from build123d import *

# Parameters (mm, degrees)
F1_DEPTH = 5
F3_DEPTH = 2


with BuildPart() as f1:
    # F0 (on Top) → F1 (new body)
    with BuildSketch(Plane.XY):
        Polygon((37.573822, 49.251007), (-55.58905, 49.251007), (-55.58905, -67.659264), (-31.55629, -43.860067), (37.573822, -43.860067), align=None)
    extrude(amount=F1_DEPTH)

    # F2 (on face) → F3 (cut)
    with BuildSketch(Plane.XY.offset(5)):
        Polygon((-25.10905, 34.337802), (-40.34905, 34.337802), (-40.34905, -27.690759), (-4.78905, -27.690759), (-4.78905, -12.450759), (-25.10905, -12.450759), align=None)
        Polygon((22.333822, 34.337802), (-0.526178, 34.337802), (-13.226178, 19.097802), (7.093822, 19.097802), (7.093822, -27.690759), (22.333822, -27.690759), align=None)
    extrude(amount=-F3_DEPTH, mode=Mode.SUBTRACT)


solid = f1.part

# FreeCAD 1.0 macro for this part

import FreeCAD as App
import Part
import Sketcher
Q = App.Units.Quantity

doc = App.newDocument("Part")
body = doc.addObject("PartDesign::Body", "Body")

sketch1 = doc.addObject("Sketcher::SketchObject", "Sketch")
body.addObject(sketch1)
sketch1.AttachmentSupport = (doc.XY_Plane, [""])
sketch1.MapMode = "FlatFace"
sketch1.addGeometry(Part.LineSegment(App.Vector(38, 49, 0), App.Vector(-56, 49, 0)), False)
sketch1.addGeometry(Part.LineSegment(App.Vector(-56, 49, 0), App.Vector(-56, -68, 0)), False)
sketch1.addGeometry(Part.LineSegment(App.Vector(-56, -68, 0), App.Vector(-32, -44, 0)), False)
sketch1.addGeometry(Part.LineSegment(App.Vector(-32, -44, 0), App.Vector(38, -44, 0)), False)
sketch1.addGeometry(Part.LineSegment(App.Vector(38, -44, 0), App.Vector(38, 49, 0)), False)
sketch1.addConstraint(Sketcher.Constraint("Coincident", 0, 2, 1, 1))
sketch1.addConstraint(Sketcher.Constraint("Coincident", 1, 2, 2, 1))
sketch1.addConstraint(Sketcher.Constraint("Coincident", 2, 2, 3, 1))
sketch1.addConstraint(Sketcher.Constraint("Coincident", 3, 2, 4, 1))
sketch1.addConstraint(Sketcher.Constraint("Coincident", 4, 2, 0, 1))
sketch1.addConstraint(Sketcher.Constraint("Horizontal", 0))
sketch1.addConstraint(Sketcher.Constraint("Vertical", 1))
sketch1.addConstraint(Sketcher.Constraint("Horizontal", 3))
sketch1.addConstraint(Sketcher.Constraint("Vertical", 4))
sketch1.addConstraint(Sketcher.Constraint("DistanceX", 0, 2, 0, 1, Q("93.162872 mm")))
sketch1.addConstraint(Sketcher.Constraint("DistanceX", 3, 1, 3, 2, Q("69.130112 mm")))
sketch1.addConstraint(Sketcher.Constraint("DistanceY", 1, 2, 1, 1, Q("116.910271 mm")))
sketch1.addConstraint(Sketcher.Constraint("DistanceY", 4, 1, 4, 2, Q("93.111074 mm")))
sketch1.addConstraint(Sketcher.Constraint("DistanceX", 0, 2, -1, 1, Q("55.58905 mm")))
sketch1.addConstraint(Sketcher.Constraint("DistanceY", -1, 1, 0, 2, Q("49.251007 mm")))
pad1 = doc.addObject("PartDesign::Pad", "Pad")
body.addObject(pad1)
pad1.Profile = sketch1
pad1.Length = 5

sketch2 = doc.addObject("Sketcher::SketchObject", "Sketch001")
body.addObject(sketch2)
sketch2.AttachmentSupport = (doc.XY_Plane, [""])
sketch2.MapMode = "FlatFace"
sketch2.AttachmentOffset = App.Placement(App.Vector(0, 0, 5), App.Rotation())
sketch2.addGeometry(Part.LineSegment(App.Vector(-25, 34, 0), App.Vector(-40, 34, 0)), False)
sketch2.addGeometry(Part.LineSegment(App.Vector(-40, 34, 0), App.Vector(-40, -28, 0)), False)
sketch2.addGeometry(Part.LineSegment(App.Vector(-40, -28, 0), App.Vector(-5, -28, 0)), False)
sketch2.addGeometry(Part.LineSegment(App.Vector(-5, -28, 0), App.Vector(-5, -12, 0)), False)
sketch2.addGeometry(Part.LineSegment(App.Vector(-5, -12, 0), App.Vector(-25, -12, 0)), False)
sketch2.addGeometry(Part.LineSegment(App.Vector(-25, -12, 0), App.Vector(-25, 34, 0)), False)
sketch2.addGeometry(Part.LineSegment(App.Vector(22, 34, 0), App.Vector(-1, 34, 0)), False)
sketch2.addGeometry(Part.LineSegment(App.Vector(-1, 34, 0), App.Vector(-13, 19, 0)), False)
sketch2.addGeometry(Part.LineSegment(App.Vector(-13, 19, 0), App.Vector(7, 19, 0)), False)
sketch2.addGeometry(Part.LineSegment(App.Vector(7, 19, 0), App.Vector(7, -28, 0)), False)
sketch2.addGeometry(Part.LineSegment(App.Vector(7, -28, 0), App.Vector(22, -28, 0)), False)
sketch2.addGeometry(Part.LineSegment(App.Vector(22, -28, 0), App.Vector(22, 34, 0)), False)
sketch2.addConstraint(Sketcher.Constraint("Coincident", 0, 2, 1, 1))
sketch2.addConstraint(Sketcher.Constraint("Coincident", 1, 2, 2, 1))
sketch2.addConstraint(Sketcher.Constraint("Coincident", 2, 2, 3, 1))
sketch2.addConstraint(Sketcher.Constraint("Coincident", 3, 2, 4, 1))
sketch2.addConstraint(Sketcher.Constraint("Coincident", 4, 2, 5, 1))
sketch2.addConstraint(Sketcher.Constraint("Coincident", 5, 2, 0, 1))
sketch2.addConstraint(Sketcher.Constraint("Coincident", 6, 2, 7, 1))
sketch2.addConstraint(Sketcher.Constraint("Coincident", 7, 2, 8, 1))
sketch2.addConstraint(Sketcher.Constraint("Coincident", 8, 2, 9, 1))
sketch2.addConstraint(Sketcher.Constraint("Coincident", 9, 2, 10, 1))
sketch2.addConstraint(Sketcher.Constraint("Coincident", 10, 2, 11, 1))
sketch2.addConstraint(Sketcher.Constraint("Coincident", 11, 2, 6, 1))
sketch2.addConstraint(Sketcher.Constraint("Horizontal", 0))
sketch2.addConstraint(Sketcher.Constraint("Vertical", 1))
sketch2.addConstraint(Sketcher.Constraint("Horizontal", 2))
sketch2.addConstraint(Sketcher.Constraint("Vertical", 3))
sketch2.addConstraint(Sketcher.Constraint("Horizontal", 4))
sketch2.addConstraint(Sketcher.Constraint("Vertical", 5))
sketch2.addConstraint(Sketcher.Constraint("Horizontal", 6))
sketch2.addConstraint(Sketcher.Constraint("Horizontal", 8))
sketch2.addConstraint(Sketcher.Constraint("Vertical", 9))
sketch2.addConstraint(Sketcher.Constraint("Horizontal", 10))
sketch2.addConstraint(Sketcher.Constraint("Vertical", 11))
sketch2.addConstraint(Sketcher.Constraint("Horizontal", 5, 2, 6, 2))
sketch2.addConstraint(Sketcher.Constraint("Horizontal", 2, 2, 9, 2))
sketch2.addConstraint(Sketcher.Constraint("Equal", 4, 8))
sketch2.addConstraint(Sketcher.Constraint("Equal", 0, 10))
sketch2.addConstraint(Sketcher.Constraint("Equal", 10, 3))
sketch2.addConstraint(Sketcher.Constraint("Equal", 5, 9))
sketch2.addConstraint(Sketcher.Constraint("DistanceX", 0, 2, 0, 1, Q("0.6 in")))
sketch2.addConstraint(Sketcher.Constraint("DistanceX", 2, 1, 2, 2, Q("1.4 in")))
sketch2.addConstraint(Sketcher.Constraint("DistanceX", 6, 2, 6, 1, Q("0.9 in")))
sketch2.addConstraint(Sketcher.Constraint("DistanceY", 1, 2, 1, 1, Q("62.028561 mm")))
sketch2.addConstraint(Sketcher.Constraint("DistanceX", 0, 2, -1, 1, Q("40.34905 mm")))
sketch2.addConstraint(Sketcher.Constraint("DistanceY", 1, 2, -1, 1, Q("27.690759 mm")))
sketch2.addConstraint(Sketcher.Constraint("DistanceX", 6, 2, -1, 1, Q("0.526178 mm")))
pocket1 = doc.addObject("PartDesign::Pocket", "Pocket")
body.addObject(pocket1)
pocket1.Profile = sketch2
pocket1.Length = 2

doc.recompute()
